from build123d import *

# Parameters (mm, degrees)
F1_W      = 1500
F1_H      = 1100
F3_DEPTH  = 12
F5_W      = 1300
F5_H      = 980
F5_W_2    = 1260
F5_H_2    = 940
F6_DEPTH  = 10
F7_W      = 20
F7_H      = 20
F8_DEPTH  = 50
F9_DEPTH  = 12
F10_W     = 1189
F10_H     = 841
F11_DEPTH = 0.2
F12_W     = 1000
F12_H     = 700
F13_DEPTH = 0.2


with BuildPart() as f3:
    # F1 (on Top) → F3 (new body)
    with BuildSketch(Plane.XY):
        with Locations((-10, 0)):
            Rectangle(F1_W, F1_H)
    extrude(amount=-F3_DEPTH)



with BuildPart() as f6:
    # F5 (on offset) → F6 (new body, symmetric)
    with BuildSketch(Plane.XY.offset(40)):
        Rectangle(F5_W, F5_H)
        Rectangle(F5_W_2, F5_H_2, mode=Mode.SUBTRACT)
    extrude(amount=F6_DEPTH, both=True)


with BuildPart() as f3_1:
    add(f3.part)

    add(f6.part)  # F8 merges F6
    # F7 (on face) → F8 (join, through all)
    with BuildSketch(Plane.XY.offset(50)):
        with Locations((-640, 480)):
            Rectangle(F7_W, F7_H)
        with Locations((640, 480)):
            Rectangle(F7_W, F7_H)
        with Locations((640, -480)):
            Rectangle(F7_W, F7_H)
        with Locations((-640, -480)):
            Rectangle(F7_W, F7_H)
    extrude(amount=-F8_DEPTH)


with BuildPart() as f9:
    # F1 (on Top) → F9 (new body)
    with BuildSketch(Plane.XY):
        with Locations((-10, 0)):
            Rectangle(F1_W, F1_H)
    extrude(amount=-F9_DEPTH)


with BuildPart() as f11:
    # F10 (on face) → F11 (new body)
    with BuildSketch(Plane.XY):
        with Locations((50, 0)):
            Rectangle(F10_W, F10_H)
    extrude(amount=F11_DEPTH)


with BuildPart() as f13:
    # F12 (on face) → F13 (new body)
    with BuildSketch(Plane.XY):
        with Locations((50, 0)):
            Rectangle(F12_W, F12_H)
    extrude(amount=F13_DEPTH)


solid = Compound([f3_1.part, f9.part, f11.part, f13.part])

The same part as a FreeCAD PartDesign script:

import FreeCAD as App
import Part
import Sketcher

V = App.Vector


def add_polygon(sketch, points):
    """Adds a closed chain of lines whose ends are joined by coincident constraints."""
    first, n = sketch.GeometryCount, len(points)
    for a, b in zip(points, points[1:] + points[:1]):
        sketch.addGeometry(Part.LineSegment(App.Vector(*a, 0), App.Vector(*b, 0)), False)
    for i in range(n):
        sketch.addConstraint(Sketcher.Constraint("Coincident", first + i, 2, first + (i + 1) % n, 1))

doc = App.newDocument("Part")
body = doc.addObject("PartDesign::Body", "Body")

# Sketch on XY plane
sketch1 = doc.addObject("Sketcher::SketchObject", "Sketch")
body.addObject(sketch1)
sketch1.AttachmentSupport = (doc.XY_Plane, [""])
sketch1.MapMode = "FlatFace"
add_polygon(sketch1, [(-760, 550), (-760, -550), (740, -550), (740, 550)])  # lines 0-3
sketch1.addConstraint(Sketcher.Constraint("Vertical", 0))
sketch1.addConstraint(Sketcher.Constraint("Horizontal", 1))
sketch1.addConstraint(Sketcher.Constraint("Vertical", 2))
sketch1.addConstraint(Sketcher.Constraint("Horizontal", 3))
sketch1.addConstraint(Sketcher.Constraint("DistanceX", 1, 1, 1, 2, 1500.0))
sketch1.addConstraint(Sketcher.Constraint("DistanceY", 0, 2, 0, 1, 1100.0))
sketch1.addConstraint(Sketcher.Constraint("DistanceX", 0, 2, -1, 1, 760.0))
sketch1.addConstraint(Sketcher.Constraint("DistanceY", 0, 2, -1, 1, 550.0))
pad1 = doc.addObject("PartDesign::Pad", "Pad")
body.addObject(pad1)
pad1.Profile = sketch1
pad1.Length = 12
pad1.Reversed = True
body2 = doc.addObject("PartDesign::Body", "Body001")

# Sketch on XY plane
sketch2 = doc.addObject("Sketcher::SketchObject", "Sketch001")
body2.addObject(sketch2)
sketch2.AttachmentSupport = (doc.getObject("XY_Plane001"), [""])
sketch2.MapMode = "FlatFace"
sketch2.AttachmentOffset = App.Placement(V(0, 0, 40), App.Rotation())
add_polygon(sketch2, [(-650, 490), (-650, -490), (650, -490), (650, 490)])  # lines 0-3
add_polygon(sketch2, [(630, -470), (-630, -470), (-630, 470), (630, 470)])  # lines 4-7
sketch2.addConstraint(Sketcher.Constraint("Vertical", 0))
sketch2.addConstraint(Sketcher.Constraint("Horizontal", 1))
sketch2.addConstraint(Sketcher.Constraint("Vertical", 2))
sketch2.addConstraint(Sketcher.Constraint("Horizontal", 3))
sketch2.addConstraint(Sketcher.Constraint("Horizontal", 4))
sketch2.addConstraint(Sketcher.Constraint("Vertical", 5))
sketch2.addConstraint(Sketcher.Constraint("Horizontal", 6))
sketch2.addConstraint(Sketcher.Constraint("Vertical", 7))
sketch2.addConstraint(Sketcher.Constraint("Symmetric", 0, 2, 2, 2, -1, 1))
sketch2.addConstraint(Sketcher.Constraint("Symmetric", 4, 2, 6, 2, -1, 1))
sketch2.addConstraint(Sketcher.Constraint("DistanceX", 1, 1, 1, 2, 1300.0))
sketch2.addConstraint(Sketcher.Constraint("DistanceX", 4, 2, 4, 1, 1260.0))
sketch2.addConstraint(Sketcher.Constraint("DistanceY", 0, 2, 0, 1, 980.0))
sketch2.addConstraint(Sketcher.Constraint("DistanceY", 5, 1, 5, 2, 940.0))
pad2 = doc.addObject("PartDesign::Pad", "Pad001")
body2.addObject(pad2)
pad2.Profile = sketch2
pad2.Length = 20
pad2.Midplane = True
body.AllowCompound = True
doc.recompute()

boolean = doc.addObject("PartDesign::Boolean", "Boolean")
body.addObject(boolean)
boolean.Type = "Fuse"
boolean.addObjects([body2])

# Sketch on XY plane
sketch3 = doc.addObject("Sketcher::SketchObject", "Sketch002")
body.addObject(sketch3)
sketch3.AttachmentSupport = (doc.XY_Plane, [""])
sketch3.MapMode = "FlatFace"
sketch3.AttachmentOffset = App.Placement(V(0, 0, 50), App.Rotation())
add_polygon(sketch3, [(-650, 490), (-650, 470), (-630, 470), (-630, 490)])  # lines 0-3
add_polygon(sketch3, [(630, 490), (630, 470), (650, 470), (650, 490)])  # lines 4-7
add_polygon(sketch3, [(630, -470), (630, -490), (650, -490), (650, -470)])  # lines 8-11
add_polygon(sketch3, [(-650, -470), (-650, -490), (-630, -490), (-630, -470)])  # lines 12-15
sketch3.addConstraint(Sketcher.Constraint("Vertical", 0))
sketch3.addConstraint(Sketcher.Constraint("Horizontal", 1))
sketch3.addConstraint(Sketcher.Constraint("Vertical", 2))
sketch3.addConstraint(Sketcher.Constraint("Horizontal", 3))
sketch3.addConstraint(Sketcher.Constraint("Vertical", 4))
sketch3.addConstraint(Sketcher.Constraint("Horizontal", 5))
sketch3.addConstraint(Sketcher.Constraint("Vertical", 6))
sketch3.addConstraint(Sketcher.Constraint("Horizontal", 7))
sketch3.addConstraint(Sketcher.Constraint("Vertical", 8))
sketch3.addConstraint(Sketcher.Constraint("Horizontal", 9))
sketch3.addConstraint(Sketcher.Constraint("Vertical", 10))
sketch3.addConstraint(Sketcher.Constraint("Horizontal", 11))
sketch3.addConstraint(Sketcher.Constraint("Vertical", 12))
sketch3.addConstraint(Sketcher.Constraint("Horizontal", 13))
sketch3.addConstraint(Sketcher.Constraint("Vertical", 14))
sketch3.addConstraint(Sketcher.Constraint("Horizontal", 15))
sketch3.addConstraint(Sketcher.Constraint("Symmetric", 2, 2, 8, 2, -1, 1))
sketch3.addConstraint(Sketcher.Constraint("Symmetric", 0, 2, 10, 2, -1, 1))
sketch3.addConstraint(Sketcher.Constraint("Symmetric", 6, 2, 12, 2, -1, 1))
sketch3.addConstraint(Sketcher.Constraint("Symmetric", 4, 2, 14, 2, -1, 1))
sketch3.addConstraint(Sketcher.Constraint("Symmetric", 1, 2, 4, 2, -2))
sketch3.addConstraint(Sketcher.Constraint("Symmetric", 3, 2, 6, 2, -2))
sketch3.addConstraint(Sketcher.Constraint("Equal", 15, 0))
sketch3.addConstraint(Sketcher.Constraint("DistanceX", 1, 1, 1, 2, 20.0))
sketch3.addConstraint(Sketcher.Constraint("DistanceX", 0, 2, -1, 1, 650.0))
sketch3.addConstraint(Sketcher.Constraint("DistanceY", -1, 1, 0, 2, 470.0))
pad3 = doc.addObject("PartDesign::Pad", "Pad002")
body.addObject(pad3)
pad3.Profile = sketch3
pad3.Length = 50
pad3.Reversed = True
body3 = doc.addObject("PartDesign::Body", "Body002")

# Sketch on XY plane
sketch4 = doc.addObject("Sketcher::SketchObject", "Sketch003")
body3.addObject(sketch4)
sketch4.AttachmentSupport = (doc.getObject("XY_Plane002"), [""])
sketch4.MapMode = "FlatFace"
add_polygon(sketch4, [(-760, 550), (-760, -550), (740, -550), (740, 550)])  # lines 0-3
sketch4.addConstraint(Sketcher.Constraint("Vertical", 0))
sketch4.addConstraint(Sketcher.Constraint("Horizontal", 1))
sketch4.addConstraint(Sketcher.Constraint("Vertical", 2))
sketch4.addConstraint(Sketcher.Constraint("Horizontal", 3))
sketch4.addConstraint(Sketcher.Constraint("DistanceX", 1, 1, 1, 2, 1500.0))
sketch4.addConstraint(Sketcher.Constraint("DistanceY", 0, 2, 0, 1, 1100.0))
sketch4.addConstraint(Sketcher.Constraint("DistanceX", 0, 2, -1, 1, 760.0))
sketch4.addConstraint(Sketcher.Constraint("DistanceY", 0, 2, -1, 1, 550.0))
pad4 = doc.addObject("PartDesign::Pad", "Pad003")
body3.addObject(pad4)
pad4.Profile = sketch4
pad4.Length = 12
pad4.Reversed = True
body4 = doc.addObject("PartDesign::Body", "Body003")

# Sketch on XY plane
sketch5 = doc.addObject("Sketcher::SketchObject", "Sketch004")
body4.addObject(sketch5)
sketch5.AttachmentSupport = (doc.getObject("XY_Plane003"), [""])
sketch5.MapMode = "FlatFace"
add_polygon(sketch5, [(-544, 420), (-544, -420), (644, -420), (644, 420)])  # lines 0-3
sketch5.addConstraint(Sketcher.Constraint("Vertical", 0))
sketch5.addConstraint(Sketcher.Constraint("Horizontal", 1))
sketch5.addConstraint(Sketcher.Constraint("Vertical", 2))
sketch5.addConstraint(Sketcher.Constraint("Horizontal", 3))
sketch5.addConstraint(Sketcher.Constraint("DistanceX", 1, 1, 1, 2, 1189.0))
sketch5.addConstraint(Sketcher.Constraint("DistanceY", 0, 2, 0, 1, 841.0))
sketch5.addConstraint(Sketcher.Constraint("DistanceX", 0, 2, -1, 1, 544.5))
sketch5.addConstraint(Sketcher.Constraint("DistanceY", 0, 2, -1, 1, 420.5))
pad5 = doc.addObject("PartDesign::Pad", "Pad004")
body4.addObject(pad5)
pad5.Profile = sketch5
pad5.Length = 0.2
body5 = doc.addObject("PartDesign::Body", "Body004")

# Sketch on XY plane
sketch6 = doc.addObject("Sketcher::SketchObject", "Sketch005")
body5.addObject(sketch6)
sketch6.AttachmentSupport = (doc.getObject("XY_Plane004"), [""])
sketch6.MapMode = "FlatFace"
add_polygon(sketch6, [(-450, 350), (-450, -350), (550, -350), (550, 350)])  # lines 0-3
sketch6.addConstraint(Sketcher.Constraint("Vertical", 0))
sketch6.addConstraint(Sketcher.Constraint("Horizontal", 1))
sketch6.addConstraint(Sketcher.Constraint("Vertical", 2))
sketch6.addConstraint(Sketcher.Constraint("Horizontal", 3))
sketch6.addConstraint(Sketcher.Constraint("DistanceX", 1, 1, 1, 2, 1000.0))
sketch6.addConstraint(Sketcher.Constraint("DistanceY", 0, 2, 0, 1, 700.0))
sketch6.addConstraint(Sketcher.Constraint("DistanceX", 0, 2, -1, 1, 450.0))
sketch6.addConstraint(Sketcher.Constraint("DistanceY", 0, 2, -1, 1, 350.0))
pad6 = doc.addObject("PartDesign::Pad", "Pad005")
body5.addObject(pad6)
pad6.Profile = sketch6
pad6.Length = 0.2

doc.recompute()
